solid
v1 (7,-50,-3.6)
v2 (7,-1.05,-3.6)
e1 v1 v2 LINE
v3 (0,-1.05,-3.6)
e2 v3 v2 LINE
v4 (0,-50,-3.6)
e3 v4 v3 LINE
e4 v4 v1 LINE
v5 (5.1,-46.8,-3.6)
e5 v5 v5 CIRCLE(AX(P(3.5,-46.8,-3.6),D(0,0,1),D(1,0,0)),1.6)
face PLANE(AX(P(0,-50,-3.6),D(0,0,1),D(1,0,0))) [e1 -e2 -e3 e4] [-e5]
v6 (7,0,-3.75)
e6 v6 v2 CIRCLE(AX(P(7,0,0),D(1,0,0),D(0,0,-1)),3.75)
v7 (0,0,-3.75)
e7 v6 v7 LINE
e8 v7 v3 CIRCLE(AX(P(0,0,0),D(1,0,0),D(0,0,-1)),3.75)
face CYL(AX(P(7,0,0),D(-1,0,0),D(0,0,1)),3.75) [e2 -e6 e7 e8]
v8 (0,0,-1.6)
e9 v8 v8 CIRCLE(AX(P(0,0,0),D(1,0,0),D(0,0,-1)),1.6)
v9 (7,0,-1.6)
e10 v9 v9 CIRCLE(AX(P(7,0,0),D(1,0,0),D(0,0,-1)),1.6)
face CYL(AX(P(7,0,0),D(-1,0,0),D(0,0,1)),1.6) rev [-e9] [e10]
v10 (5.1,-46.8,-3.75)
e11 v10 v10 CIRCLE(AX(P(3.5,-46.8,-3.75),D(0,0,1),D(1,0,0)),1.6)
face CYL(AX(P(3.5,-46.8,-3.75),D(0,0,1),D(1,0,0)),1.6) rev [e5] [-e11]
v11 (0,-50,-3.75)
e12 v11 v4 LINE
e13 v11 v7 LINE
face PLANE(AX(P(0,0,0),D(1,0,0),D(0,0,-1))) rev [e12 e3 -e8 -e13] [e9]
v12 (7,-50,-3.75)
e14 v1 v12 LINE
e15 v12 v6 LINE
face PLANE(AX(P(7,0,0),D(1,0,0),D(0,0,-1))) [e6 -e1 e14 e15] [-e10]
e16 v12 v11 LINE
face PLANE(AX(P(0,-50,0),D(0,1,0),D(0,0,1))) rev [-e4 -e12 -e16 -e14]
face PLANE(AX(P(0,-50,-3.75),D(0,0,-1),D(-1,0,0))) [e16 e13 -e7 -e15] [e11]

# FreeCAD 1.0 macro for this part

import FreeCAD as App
import Part
import Sketcher
from FreeCAD import Vector

doc = App.newDocument("Part")
body = doc.addObject("PartDesign::Body", "Body")

sketch1 = body.newObject("Sketcher::SketchObject", "Sketch")
sketch1.AttachmentSupport = (doc.getObject("YZ_Plane"), [""])
sketch1.MapMode = "FlatFace"
sketch1.addGeometry([
    Part.Circle(Vector(0, 0, 0), Vector(0, 0, 1), 3.75),
    Part.Circle(Vector(0, 0, 0), Vector(0, 0, 1), 1.6),
], False)
sketch1.addConstraint([
    Sketcher.Constraint("Coincident", 0, 3, -1, 1),
    Sketcher.Constraint("Coincident", 1, 3, -1, 1),
    Sketcher.Constraint("Diameter", 0, 7.5),
    Sketcher.Constraint("Diameter", 1, 3.2),
])
pad1 = body.newObject("PartDesign::Pad", "Pad")
pad1.Profile = sketch1
pad1.Length = 7

sketch2 = body.newObject("Sketcher::SketchObject", "Sketch001")
sketch2.AttachmentSupport = (doc.getObject("XZ_Plane"), [""])
sketch2.MapMode = "FlatFace"
sketch2.addGeometry([
    Part.LineSegment(Vector(0, -3.75, 0), Vector(0, -3.6, 0)),
    Part.LineSegment(Vector(0, -3.6, 0), Vector(7, -3.6, 0)),
    Part.LineSegment(Vector(7, -3.6, 0), Vector(7, -3.75, 0)),
    Part.LineSegment(Vector(7, -3.75, 0), Vector(0, -3.75, 0)),
], False)
sketch2.addConstraint([
    Sketcher.Constraint("Coincident", 0, 2, 1, 1),
    Sketcher.Constraint("Coincident", 1, 2, 2, 1),
    Sketcher.Constraint("Coincident", 2, 2, 3, 1),
    Sketcher.Constraint("Coincident", 3, 2, 0, 1),
    Sketcher.Constraint("Vertical", 0),
    Sketcher.Constraint("Horizontal", 1),
    Sketcher.Constraint("Vertical", 2),
    Sketcher.Constraint("Horizontal", 3),
    Sketcher.Constraint("PointOnObject", 0, 2, -2),
    Sketcher.Constraint("DistanceX", 1, 1, 1, 2, 7.0),
    Sketcher.Constraint("DistanceY", 0, 1, 0, 2, 0.15),
    Sketcher.Constraint("DistanceY", 0, 2, -1, 1, 3.6),
])
pad2 = body.newObject("PartDesign::Pad", "Pad001")
pad2.Profile = sketch2
pad2.Length = 50

sketch3 = body.newObject("Sketcher::SketchObject", "Sketch002")
sketch3.AttachmentSupport = (doc.getObject("XY_Plane"), [""])
sketch3.MapMode = "FlatFace"
sketch3.AttachmentOffset = App.Placement(Vector(0, 0, -3.6), App.Rotation())
sketch3.addGeometry(Part.Circle(Vector(3.5, -46.8, 0), Vector(0, 0, 1), 1.6), False)
sketch3.addConstraint([
    Sketcher.Constraint("Diameter", 0, 3.2),
    Sketcher.Constraint("DistanceX", -1, 1, 0, 3, 3.5),
    Sketcher.Constraint("DistanceY", 0, 3, -1, 1, 46.8),
])
pocket1 = body.newObject("PartDesign::Pocket", "Pocket")
pocket1.Profile = sketch3
pocket1.Type = "ThroughAll"

doc.recompute()
